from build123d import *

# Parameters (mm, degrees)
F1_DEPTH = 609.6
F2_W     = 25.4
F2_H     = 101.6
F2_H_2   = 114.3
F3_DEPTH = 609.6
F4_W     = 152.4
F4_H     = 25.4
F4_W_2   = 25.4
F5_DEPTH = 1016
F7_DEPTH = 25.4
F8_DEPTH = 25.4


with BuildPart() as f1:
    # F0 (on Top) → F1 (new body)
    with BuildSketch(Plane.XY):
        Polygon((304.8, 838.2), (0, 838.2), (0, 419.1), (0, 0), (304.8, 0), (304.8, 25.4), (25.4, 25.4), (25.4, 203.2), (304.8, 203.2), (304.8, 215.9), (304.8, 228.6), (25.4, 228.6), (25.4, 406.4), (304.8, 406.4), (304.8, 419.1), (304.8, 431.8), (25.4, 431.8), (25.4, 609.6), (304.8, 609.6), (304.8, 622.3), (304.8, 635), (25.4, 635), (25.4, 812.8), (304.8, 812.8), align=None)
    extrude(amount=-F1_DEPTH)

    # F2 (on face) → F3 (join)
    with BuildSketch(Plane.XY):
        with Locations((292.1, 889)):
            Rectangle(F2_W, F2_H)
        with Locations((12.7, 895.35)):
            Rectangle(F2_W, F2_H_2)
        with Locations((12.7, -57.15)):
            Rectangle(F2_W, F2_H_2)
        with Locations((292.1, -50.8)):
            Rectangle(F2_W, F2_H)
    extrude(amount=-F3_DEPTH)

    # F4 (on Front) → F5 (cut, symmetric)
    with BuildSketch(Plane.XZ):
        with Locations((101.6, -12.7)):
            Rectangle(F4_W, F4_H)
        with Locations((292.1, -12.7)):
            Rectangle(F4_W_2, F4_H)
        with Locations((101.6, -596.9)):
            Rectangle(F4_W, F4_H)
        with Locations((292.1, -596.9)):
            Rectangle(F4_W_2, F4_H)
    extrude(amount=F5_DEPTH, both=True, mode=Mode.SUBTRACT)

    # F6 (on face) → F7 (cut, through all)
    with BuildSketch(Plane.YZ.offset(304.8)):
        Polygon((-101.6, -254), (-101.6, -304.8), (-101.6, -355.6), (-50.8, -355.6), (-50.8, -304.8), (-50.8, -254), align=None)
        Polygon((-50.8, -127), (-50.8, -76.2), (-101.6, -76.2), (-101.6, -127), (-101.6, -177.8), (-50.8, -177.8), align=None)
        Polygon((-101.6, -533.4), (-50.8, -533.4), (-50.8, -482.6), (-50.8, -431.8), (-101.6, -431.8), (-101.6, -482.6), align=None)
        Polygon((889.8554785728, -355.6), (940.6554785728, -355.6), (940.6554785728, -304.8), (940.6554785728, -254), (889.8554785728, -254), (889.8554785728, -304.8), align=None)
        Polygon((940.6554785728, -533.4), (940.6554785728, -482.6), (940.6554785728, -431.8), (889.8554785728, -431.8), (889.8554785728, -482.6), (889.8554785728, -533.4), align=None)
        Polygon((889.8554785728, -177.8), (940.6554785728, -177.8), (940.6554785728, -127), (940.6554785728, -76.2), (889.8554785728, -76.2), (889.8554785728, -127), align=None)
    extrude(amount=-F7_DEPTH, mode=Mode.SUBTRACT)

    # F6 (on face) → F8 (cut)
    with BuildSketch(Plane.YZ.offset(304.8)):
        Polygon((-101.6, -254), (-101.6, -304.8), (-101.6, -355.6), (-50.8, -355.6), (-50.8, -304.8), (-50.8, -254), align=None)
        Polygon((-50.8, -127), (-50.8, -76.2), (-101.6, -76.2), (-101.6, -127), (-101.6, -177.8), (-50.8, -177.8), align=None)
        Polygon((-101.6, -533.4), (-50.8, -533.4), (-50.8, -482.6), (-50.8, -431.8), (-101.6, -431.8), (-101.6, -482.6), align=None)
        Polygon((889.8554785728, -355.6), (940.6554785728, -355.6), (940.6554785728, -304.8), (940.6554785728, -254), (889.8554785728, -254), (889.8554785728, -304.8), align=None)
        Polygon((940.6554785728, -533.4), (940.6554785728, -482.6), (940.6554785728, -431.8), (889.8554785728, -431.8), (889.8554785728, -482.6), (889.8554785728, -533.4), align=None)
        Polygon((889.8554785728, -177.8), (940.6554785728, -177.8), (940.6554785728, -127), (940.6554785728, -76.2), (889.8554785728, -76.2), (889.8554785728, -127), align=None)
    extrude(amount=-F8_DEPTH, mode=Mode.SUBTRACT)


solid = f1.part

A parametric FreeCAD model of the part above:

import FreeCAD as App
import Part
import Sketcher
Q = App.Units.Quantity


def add_polygon(sketch, points):
    """Adds a closed chain of lines whose ends are joined by coincident constraints."""
    first, n = sketch.GeometryCount, len(points)
    for a, b in zip(points, points[1:] + points[:1]):
        sketch.addGeometry(Part.LineSegment(App.Vector(*a, 0), App.Vector(*b, 0)), False)
    for i in range(n):
        sketch.addConstraint(Sketcher.Constraint("Coincident", first + i, 2, first + (i + 1) % n, 1))

doc = App.newDocument("Part")
body = doc.addObject("PartDesign::Body", "Body")

# Sketch on XY plane
sketch1 = body.newObject("Sketcher::SketchObject", "Sketch")
sketch1.AttachmentSupport = (doc.getObject("XY_Plane"), [""])
sketch1.MapMode = "FlatFace"
add_polygon(sketch1, [(304.8, 838.2), (0, 838.2), (0, 0), (304.8, 0), (304.8, 25.4), (25.4, 25.4), (25.4, 203.2), (304.8, 203.2), (304.8, 228.6), (25.4, 228.6), (25.4, 406.4), (304.8, 406.4), (304.8, 431.8), (25.4, 431.8), (25.4, 609.6), (304.8, 609.6), (304.8, 635), (25.4, 635), (25.4, 812.8), (304.8, 812.8)])  # lines 0-19
sketch1.addConstraint([
    Sketcher.Constraint("Horizontal", 0),
    Sketcher.Constraint("Vertical", 1),
    Sketcher.Constraint("Horizontal", 2),
    Sketcher.Constraint("Vertical", 3),
    Sketcher.Constraint("Horizontal", 4),
    Sketcher.Constraint("Vertical", 5),
    Sketcher.Constraint("Horizontal", 6),
    Sketcher.Constraint("Vertical", 7),
    Sketcher.Constraint("Horizontal", 8),
    Sketcher.Constraint("Vertical", 9),
    Sketcher.Constraint("Horizontal", 10),
    Sketcher.Constraint("Vertical", 11),
    Sketcher.Constraint("Horizontal", 12),
    Sketcher.Constraint("Vertical", 13),
    Sketcher.Constraint("Horizontal", 14),
    Sketcher.Constraint("Vertical", 15),
    Sketcher.Constraint("Horizontal", 16),
    Sketcher.Constraint("Vertical", 17),
    Sketcher.Constraint("Horizontal", 18),
    Sketcher.Constraint("Vertical", 19),
    Sketcher.Constraint("Coincident", 1, 2, -1, 1),
    Sketcher.Constraint("Vertical", 3, 2, 6, 2),
    Sketcher.Constraint("Vertical", 5, 2, 8, 2),
    Sketcher.Constraint("Vertical", 7, 2, 10, 2),
    Sketcher.Constraint("Vertical", 9, 2, 12, 2),
    Sketcher.Constraint("Vertical", 11, 2, 14, 2),
    Sketcher.Constraint("Vertical", 13, 2, 16, 2),
    Sketcher.Constraint("Vertical", 15, 2, 18, 2),
    Sketcher.Constraint("Equal", 3, 7),
    Sketcher.Constraint("Equal", 5, 9),
    Sketcher.Constraint("Equal", 7, 11),
    Sketcher.Constraint("Equal", 9, 13),
    Sketcher.Constraint("Equal", 11, 15),
    Sketcher.Constraint("Equal", 13, 17),
    Sketcher.Constraint("Equal", 15, 19),
    Sketcher.Constraint("DistanceX", 0, 2, 0, 1, Q("12 in")),
    Sketcher.Constraint("DistanceX", 4, 2, 4, 1, Q("11 in")),
    Sketcher.Constraint("DistanceY", 1, 2, 1, 1, Q("33 in")),
    Sketcher.Constraint("DistanceY", 3, 1, 3, 2, Q("1 in")),
])
pad1 = body.newObject("PartDesign::Pad", "Pad")
pad1.Profile = sketch1
pad1.Length = Q("24 in")
pad1.Reversed = True

# Sketch on XY plane
sketch2 = body.newObject("Sketcher::SketchObject", "Sketch001")
sketch2.AttachmentSupport = (doc.getObject("XY_Plane"), [""])
sketch2.MapMode = "FlatFace"
add_polygon(sketch2, [(279.4, 939.8), (279.4, 838.2), (304.8, 838.2), (304.8, 939.8)])  # lines 0-3
add_polygon(sketch2, [(0, 952.5), (0, 838.2), (25.4, 838.2), (25.4, 952.5)])  # lines 4-7
add_polygon(sketch2, [(0, 0), (0, -114.3), (25.4, -114.3), (25.4, 0)])  # lines 8-11
add_polygon(sketch2, [(279.4, 0), (279.4, -101.6), (304.8, -101.6), (304.8, 0)])  # lines 12-15
sketch2.addConstraint([
    Sketcher.Constraint("Vertical", 0),
    Sketcher.Constraint("Horizontal", 1),
    Sketcher.Constraint("Vertical", 2),
    Sketcher.Constraint("Horizontal", 3),
    Sketcher.Constraint("Vertical", 4),
    Sketcher.Constraint("Horizontal", 5),
    Sketcher.Constraint("Vertical", 6),
    Sketcher.Constraint("Horizontal", 7),
    Sketcher.Constraint("Vertical", 8),
    Sketcher.Constraint("Horizontal", 9),
    Sketcher.Constraint("Vertical", 10),
    Sketcher.Constraint("Horizontal", 11),
    Sketcher.Constraint("Vertical", 12),
    Sketcher.Constraint("Horizontal", 13),
    Sketcher.Constraint("Vertical", 14),
    Sketcher.Constraint("Horizontal", 15),
    Sketcher.Constraint("Coincident", 11, 2, -1, 1),
    Sketcher.Constraint("PointOnObject", 4, 2, -2),
    Sketcher.Constraint("PointOnObject", 14, 2, -1),
    Sketcher.Constraint("Horizontal", 1, 2, 4, 2),
    Sketcher.Constraint("Vertical", 6, 2, 9, 2),
    Sketcher.Constraint("Vertical", 3, 2, 12, 2),
    Sketcher.Constraint("Vertical", 2, 2, 13, 2),
    Sketcher.Constraint("Equal", 3, 5),
    Sketcher.Constraint("Equal", 6, 8),
    Sketcher.Constraint("Equal", 2, 12),
    Sketcher.Constraint("DistanceX", 1, 1, 1, 2, Q("1 in")),
    Sketcher.Constraint("DistanceY", 0, 2, 0, 1, Q("4 in")),
    Sketcher.Constraint("DistanceY", 4, 2, 4, 1, Q("4.5 in")),
    Sketcher.Constraint("DistanceX", -1, 1, 0, 2, Q("11 in")),
    Sketcher.Constraint("DistanceY", -1, 1, 0, 2, Q("33 in")),
])
pad2 = body.newObject("PartDesign::Pad", "Pad001")
pad2.Profile = sketch2
pad2.Length = Q("24 in")
pad2.Reversed = True

# Sketch on XZ plane
sketch3 = body.newObject("Sketcher::SketchObject", "Sketch002")
sketch3.AttachmentSupport = (doc.getObject("XZ_Plane"), [""])
sketch3.MapMode = "FlatFace"
add_polygon(sketch3, [(25.4, 0), (25.4, -25.4), (177.8, -25.4), (177.8, 0)])  # lines 0-3
add_polygon(sketch3, [(279.4, 0), (279.4, -25.4), (304.8, -25.4), (304.8, 0)])  # lines 4-7
add_polygon(sketch3, [(25.4, -584.2), (25.4, -609.6), (177.8, -609.6), (177.8, -584.2)])  # lines 8-11
add_polygon(sketch3, [(279.4, -584.2), (279.4, -609.6), (304.8, -609.6), (304.8, -584.2)])  # lines 12-15
sketch3.addConstraint([
    Sketcher.Constraint("Vertical", 0),
    Sketcher.Constraint("Horizontal", 1),
    Sketcher.Constraint("Vertical", 2),
    Sketcher.Constraint("Horizontal", 3),
    Sketcher.Constraint("Vertical", 4),
    Sketcher.Constraint("Horizontal", 5),
    Sketcher.Constraint("Vertical", 6),
    Sketcher.Constraint("Horizontal", 7),
    Sketcher.Constraint("Vertical", 8),
    Sketcher.Constraint("Horizontal", 9),
    Sketcher.Constraint("Vertical", 10),
    Sketcher.Constraint("Horizontal", 11),
    Sketcher.Constraint("Vertical", 12),
    Sketcher.Constraint("Horizontal", 13),
    Sketcher.Constraint("Vertical", 14),
    Sketcher.Constraint("Horizontal", 15),
    Sketcher.Constraint("PointOnObject", 2, 2, -1),
    Sketcher.Constraint("PointOnObject", 6, 2, -1),
    Sketcher.Constraint("Horizontal", 1, 2, 4, 2),
    Sketcher.Constraint("Horizontal", 9, 2, 12, 2),
    Sketcher.Constraint("Horizontal", 11, 2, 14, 2),
    Sketcher.Constraint("Vertical", 3, 2, 8, 2),
    Sketcher.Constraint("Vertical", 2, 2, 9, 2),
    Sketcher.Constraint("Vertical", 7, 2, 12, 2),
    Sketcher.Constraint("Vertical", 6, 2, 13, 2),
    Sketcher.Constraint("Equal", 15, 0),
    Sketcher.Constraint("Equal", 6, 8),
    Sketcher.Constraint("DistanceX", 1, 1, 1, 2, Q("6 in")),
    Sketcher.Constraint("DistanceX", 5, 1, 5, 2, Q("1 in")),
    Sketcher.Constraint("DistanceX", -1, 1, 0, 2, Q("1 in")),
    Sketcher.Constraint("DistanceX", -1, 1, 4, 2, Q("11 in")),
    Sketcher.Constraint("DistanceY", 8, 2, -1, 1, Q("24 in")),
])
pocket1 = body.newObject("PartDesign::Pocket", "Pocket")
pocket1.Profile = sketch3
pocket1.Length = Q("80 in")
pocket1.Midplane = True

# Sketch on YZ plane
sketch4 = body.newObject("Sketcher::SketchObject", "Sketch003")
sketch4.AttachmentSupport = (doc.getObject("YZ_Plane"), [""])
sketch4.MapMode = "FlatFace"
sketch4.AttachmentOffset = App.Placement(App.Vector(0, 0, 12 * 25.4), App.Rotation())
add_polygon(sketch4, [(-101.6, -254), (-101.6, -355.6), (-50.8, -355.6), (-50.8, -254)])  # lines 0-3
add_polygon(sketch4, [(-50.8, -76.2), (-101.6, -76.2), (-101.6, -177.8), (-50.8, -177.8)])  # lines 4-7
add_polygon(sketch4, [(-101.6, -533.4), (-50.8, -533.4), (-50.8, -431.8), (-101.6, -431.8)])  # lines 8-11
add_polygon(sketch4, [(889.855479, -355.6), (940.655479, -355.6), (940.655479, -254), (889.855479, -254)])  # lines 12-15
add_polygon(sketch4, [(940.655479, -533.4), (940.655479, -431.8), (889.855479, -431.8), (889.855479, -533.4)])  # lines 16-19
add_polygon(sketch4, [(889.855479, -177.8), (940.655479, -177.8), (940.655479, -76.2), (889.855479, -76.2)])  # lines 20-23
sketch4.addConstraint([
    Sketcher.Constraint("Vertical", 0),
    Sketcher.Constraint("Horizontal", 1),
    Sketcher.Constraint("Vertical", 2),
    Sketcher.Constraint("Horizontal", 3),
    Sketcher.Constraint("Horizontal", 4),
    Sketcher.Constraint("Vertical", 5),
    Sketcher.Constraint("Horizontal", 6),
    Sketcher.Constraint("Vertical", 7),
    Sketcher.Constraint("Horizontal", 8),
    Sketcher.Constraint("Vertical", 9),
    Sketcher.Constraint("Horizontal", 10),
    Sketcher.Constraint("Vertical", 11),
    Sketcher.Constraint("Horizontal", 12),
    Sketcher.Constraint("Vertical", 13),
    Sketcher.Constraint("Horizontal", 14),
    Sketcher.Constraint("Vertical", 15),
    Sketcher.Constraint("Vertical", 16),
    Sketcher.Constraint("Horizontal", 17),
    Sketcher.Constraint("Vertical", 18),
    Sketcher.Constraint("Horizontal", 19),
    Sketcher.Constraint("Horizontal", 20),
    Sketcher.Constraint("Vertical", 21),
    Sketcher.Constraint("Horizontal", 22),
    Sketcher.Constraint("Vertical", 23),
    Sketcher.Constraint("Horizontal", 1, 2, 12, 2),
    Sketcher.Constraint("Horizontal", 3, 2, 13, 2),
    Sketcher.Constraint("Horizontal", 10, 2, 16, 2),
    Sketcher.Constraint("Horizontal", 11, 2, 18, 2),
    Sketcher.Constraint("Horizontal", 6, 2, 20, 2),
    Sketcher.Constraint("Horizontal", 7, 2, 21, 2),
    Sketcher.Constraint("Vertical", 3, 2, 4, 2),
    Sketcher.Constraint("Vertical", 2, 2, 6, 2),
    Sketcher.Constraint("Vertical", 7, 2, 8, 2),
    Sketcher.Constraint("Vertical", 5, 2, 10, 2),
    Sketcher.Constraint("Vertical", 13, 2, 16, 2),
    Sketcher.Constraint("Vertical", 15, 2, 17, 2),
    Sketcher.Constraint("Vertical", 19, 2, 20, 2),
    Sketcher.Constraint("Vertical", 18, 2, 22, 2),
    Sketcher.Constraint("Equal", 10, 12),
    Sketcher.Constraint("Equal", 2, 5),
    Sketcher.Constraint("Equal", 7, 9),
    Sketcher.Constraint("DistanceX", 1, 1, 1, 2, Q("2 in")),
    Sketcher.Constraint("DistanceY", 0, 2, 0, 1, Q("4 in")),
    Sketcher.Constraint("DistanceX", 0, 2, -1, 1, Q("4 in")),
    Sketcher.Constraint("DistanceY", 0, 2, -1, 1, Q("14 in")),
    Sketcher.Constraint("DistanceY", 4, 2, -1, 1, Q("3 in")),
    Sketcher.Constraint("DistanceY", 8, 2, -1, 1, Q("21 in")),
    Sketcher.Constraint("DistanceX", -1, 1, 12, 2, Q("940.655479 mm")),
])
pocket2 = body.newObject("PartDesign::Pocket", "Pocket001")
pocket2.Profile = sketch4
pocket2.Length = Q("1 in")

# Sketch on YZ plane
sketch5 = body.newObject("Sketcher::SketchObject", "Sketch004")
sketch5.AttachmentSupport = (doc.getObject("YZ_Plane"), [""])
sketch5.MapMode = "FlatFace"
sketch5.AttachmentOffset = App.Placement(App.Vector(0, 0, 12 * 25.4), App.Rotation())
add_polygon(sketch5, [(-101.6, -254), (-101.6, -355.6), (-50.8, -355.6), (-50.8, -254)])  # lines 0-3
add_polygon(sketch5, [(-50.8, -76.2), (-101.6, -76.2), (-101.6, -177.8), (-50.8, -177.8)])  # lines 4-7
add_polygon(sketch5, [(-101.6, -533.4), (-50.8, -533.4), (-50.8, -431.8), (-101.6, -431.8)])  # lines 8-11
add_polygon(sketch5, [(889.855479, -355.6), (940.655479, -355.6), (940.655479, -254), (889.855479, -254)])  # lines 12-15
add_polygon(sketch5, [(940.655479, -533.4), (940.655479, -431.8), (889.855479, -431.8), (889.855479, -533.4)])  # lines 16-19
add_polygon(sketch5, [(889.855479, -177.8), (940.655479, -177.8), (940.655479, -76.2), (889.855479, -76.2)])  # lines 20-23
sketch5.addConstraint([
    Sketcher.Constraint("Vertical", 0),
    Sketcher.Constraint("Horizontal", 1),
    Sketcher.Constraint("Vertical", 2),
    Sketcher.Constraint("Horizontal", 3),
    Sketcher.Constraint("Horizontal", 4),
    Sketcher.Constraint("Vertical", 5),
    Sketcher.Constraint("Horizontal", 6),
    Sketcher.Constraint("Vertical", 7),
    Sketcher.Constraint("Horizontal", 8),
    Sketcher.Constraint("Vertical", 9),
    Sketcher.Constraint("Horizontal", 10),
    Sketcher.Constraint("Vertical", 11),
    Sketcher.Constraint("Horizontal", 12),
    Sketcher.Constraint("Vertical", 13),
    Sketcher.Constraint("Horizontal", 14),
    Sketcher.Constraint("Vertical", 15),
    Sketcher.Constraint("Vertical", 16),
    Sketcher.Constraint("Horizontal", 17),
    Sketcher.Constraint("Vertical", 18),
    Sketcher.Constraint("Horizontal", 19),
    Sketcher.Constraint("Horizontal", 20),
    Sketcher.Constraint("Vertical", 21),
    Sketcher.Constraint("Horizontal", 22),
    Sketcher.Constraint("Vertical", 23),
    Sketcher.Constraint("Horizontal", 1, 2, 12, 2),
    Sketcher.Constraint("Horizontal", 3, 2, 13, 2),
    Sketcher.Constraint("Horizontal", 10, 2, 16, 2),
    Sketcher.Constraint("Horizontal", 11, 2, 18, 2),
    Sketcher.Constraint("Horizontal", 6, 2, 20, 2),
    Sketcher.Constraint("Horizontal", 7, 2, 21, 2),
    Sketcher.Constraint("Vertical", 3, 2, 4, 2),
    Sketcher.Constraint("Vertical", 2, 2, 6, 2),
    Sketcher.Constraint("Vertical", 7, 2, 8, 2),
    Sketcher.Constraint("Vertical", 5, 2, 10, 2),
    Sketcher.Constraint("Vertical", 13, 2, 16, 2),
    Sketcher.Constraint("Vertical", 15, 2, 17, 2),
    Sketcher.Constraint("Vertical", 19, 2, 20, 2),
    Sketcher.Constraint("Vertical", 18, 2, 22, 2),
    Sketcher.Constraint("Equal", 10, 12),
    Sketcher.Constraint("Equal", 2, 5),
    Sketcher.Constraint("Equal", 7, 9),
    Sketcher.Constraint("DistanceX", 1, 1, 1, 2, Q("2 in")),
    Sketcher.Constraint("DistanceY", 0, 2, 0, 1, Q("4 in")),
    Sketcher.Constraint("DistanceX", 0, 2, -1, 1, Q("4 in")),
    Sketcher.Constraint("DistanceY", 0, 2, -1, 1, Q("14 in")),
    Sketcher.Constraint("DistanceY", 4, 2, -1, 1, Q("3 in")),
    Sketcher.Constraint("DistanceY", 8, 2, -1, 1, Q("21 in")),
    Sketcher.Constraint("DistanceX", -1, 1, 12, 2, Q("940.655479 mm")),
])
pocket3 = body.newObject("PartDesign::Pocket", "Pocket002")
pocket3.Profile = sketch5
pocket3.Length = Q("1 in")

doc.recompute()
